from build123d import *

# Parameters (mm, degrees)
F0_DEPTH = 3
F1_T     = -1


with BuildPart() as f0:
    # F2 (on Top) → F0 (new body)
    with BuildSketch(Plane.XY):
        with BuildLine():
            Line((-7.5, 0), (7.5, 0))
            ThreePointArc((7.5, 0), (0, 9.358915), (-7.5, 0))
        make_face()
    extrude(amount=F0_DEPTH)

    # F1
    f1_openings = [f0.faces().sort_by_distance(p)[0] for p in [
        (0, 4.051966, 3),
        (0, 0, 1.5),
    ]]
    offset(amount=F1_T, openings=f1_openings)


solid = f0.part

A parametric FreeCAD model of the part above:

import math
import FreeCAD as App
import Part
import Sketcher

V = App.Vector
Q = App.Units.Quantity


def faces_at(feature, points):
    """Names of the faces that lie closest to the given points."""
    faces = feature.Shape.Faces
    near = lambda p: min(range(len(faces)), key=lambda i: faces[i].distToShape(Part.Vertex(*p))[0])
    return sorted({f"Face{near(p) + 1}" for p in points})

doc = App.newDocument("Part")
params = doc.addObject("Spreadsheet::Sheet", "Params")
for row, (alias, value) in enumerate([
    ("sketch1_width", "15 mm"),
    ("pad1_length", "3 mm"),
    ("thickness_wall", "1 mm"),
], start=1):
    params.set(f"A{row}", alias)
    params.set(f"B{row}", "=" + value)
    params.setAlias(f"B{row}", alias)

body = doc.addObject("PartDesign::Body", "Body")

# Sketch on XY plane
sketch1 = body.newObject("Sketcher::SketchObject", "Sketch")
sketch1.AttachmentSupport = (doc.getObject("XY_Plane"), [""])
sketch1.MapMode = "FlatFace"
sketch1.addGeometry([
    Part.LineSegment(V(-8, 0, 0), V(8, 0, 0)),
    Part.ArcOfCircle(Part.Circle(V(0, 2, 0), V(0, 0, 1), 8), math.radians(-13), math.radians(193)),
], False)
sketch1.addConstraint([
    Sketcher.Constraint("Coincident", 0, 1, 1, 2),
    Sketcher.Constraint("Coincident", 1, 1, 0, 2),
    Sketcher.Constraint("Horizontal", 0),
    Sketcher.Constraint("Symmetric", 0, 1, 1, 1, -1, 1),
    Sketcher.Constraint("DistanceX", 0, 1, 0, 2, Q("15 mm")),
    Sketcher.Constraint("Radius", 1, Q("7.684614 mm")),
])
sketch1.setExpression("Constraints[4]", "Params.sketch1_width")
pad1 = body.newObject("PartDesign::Pad", "Pad")
pad1.Profile = sketch1
pad1.setExpression("Length", "Params.pad1_length")
doc.recompute()

thickness = body.newObject("PartDesign::Thickness", "Thickness")
thickness.Base = (pad1, faces_at(pad1, [(0, 4.679, 3), (0, 0, 1.5)]))
thickness.setExpression("Value", "Params.thickness_wall")
thickness.Reversed = True
thickness.Join = "Arc"

doc.recompute()
